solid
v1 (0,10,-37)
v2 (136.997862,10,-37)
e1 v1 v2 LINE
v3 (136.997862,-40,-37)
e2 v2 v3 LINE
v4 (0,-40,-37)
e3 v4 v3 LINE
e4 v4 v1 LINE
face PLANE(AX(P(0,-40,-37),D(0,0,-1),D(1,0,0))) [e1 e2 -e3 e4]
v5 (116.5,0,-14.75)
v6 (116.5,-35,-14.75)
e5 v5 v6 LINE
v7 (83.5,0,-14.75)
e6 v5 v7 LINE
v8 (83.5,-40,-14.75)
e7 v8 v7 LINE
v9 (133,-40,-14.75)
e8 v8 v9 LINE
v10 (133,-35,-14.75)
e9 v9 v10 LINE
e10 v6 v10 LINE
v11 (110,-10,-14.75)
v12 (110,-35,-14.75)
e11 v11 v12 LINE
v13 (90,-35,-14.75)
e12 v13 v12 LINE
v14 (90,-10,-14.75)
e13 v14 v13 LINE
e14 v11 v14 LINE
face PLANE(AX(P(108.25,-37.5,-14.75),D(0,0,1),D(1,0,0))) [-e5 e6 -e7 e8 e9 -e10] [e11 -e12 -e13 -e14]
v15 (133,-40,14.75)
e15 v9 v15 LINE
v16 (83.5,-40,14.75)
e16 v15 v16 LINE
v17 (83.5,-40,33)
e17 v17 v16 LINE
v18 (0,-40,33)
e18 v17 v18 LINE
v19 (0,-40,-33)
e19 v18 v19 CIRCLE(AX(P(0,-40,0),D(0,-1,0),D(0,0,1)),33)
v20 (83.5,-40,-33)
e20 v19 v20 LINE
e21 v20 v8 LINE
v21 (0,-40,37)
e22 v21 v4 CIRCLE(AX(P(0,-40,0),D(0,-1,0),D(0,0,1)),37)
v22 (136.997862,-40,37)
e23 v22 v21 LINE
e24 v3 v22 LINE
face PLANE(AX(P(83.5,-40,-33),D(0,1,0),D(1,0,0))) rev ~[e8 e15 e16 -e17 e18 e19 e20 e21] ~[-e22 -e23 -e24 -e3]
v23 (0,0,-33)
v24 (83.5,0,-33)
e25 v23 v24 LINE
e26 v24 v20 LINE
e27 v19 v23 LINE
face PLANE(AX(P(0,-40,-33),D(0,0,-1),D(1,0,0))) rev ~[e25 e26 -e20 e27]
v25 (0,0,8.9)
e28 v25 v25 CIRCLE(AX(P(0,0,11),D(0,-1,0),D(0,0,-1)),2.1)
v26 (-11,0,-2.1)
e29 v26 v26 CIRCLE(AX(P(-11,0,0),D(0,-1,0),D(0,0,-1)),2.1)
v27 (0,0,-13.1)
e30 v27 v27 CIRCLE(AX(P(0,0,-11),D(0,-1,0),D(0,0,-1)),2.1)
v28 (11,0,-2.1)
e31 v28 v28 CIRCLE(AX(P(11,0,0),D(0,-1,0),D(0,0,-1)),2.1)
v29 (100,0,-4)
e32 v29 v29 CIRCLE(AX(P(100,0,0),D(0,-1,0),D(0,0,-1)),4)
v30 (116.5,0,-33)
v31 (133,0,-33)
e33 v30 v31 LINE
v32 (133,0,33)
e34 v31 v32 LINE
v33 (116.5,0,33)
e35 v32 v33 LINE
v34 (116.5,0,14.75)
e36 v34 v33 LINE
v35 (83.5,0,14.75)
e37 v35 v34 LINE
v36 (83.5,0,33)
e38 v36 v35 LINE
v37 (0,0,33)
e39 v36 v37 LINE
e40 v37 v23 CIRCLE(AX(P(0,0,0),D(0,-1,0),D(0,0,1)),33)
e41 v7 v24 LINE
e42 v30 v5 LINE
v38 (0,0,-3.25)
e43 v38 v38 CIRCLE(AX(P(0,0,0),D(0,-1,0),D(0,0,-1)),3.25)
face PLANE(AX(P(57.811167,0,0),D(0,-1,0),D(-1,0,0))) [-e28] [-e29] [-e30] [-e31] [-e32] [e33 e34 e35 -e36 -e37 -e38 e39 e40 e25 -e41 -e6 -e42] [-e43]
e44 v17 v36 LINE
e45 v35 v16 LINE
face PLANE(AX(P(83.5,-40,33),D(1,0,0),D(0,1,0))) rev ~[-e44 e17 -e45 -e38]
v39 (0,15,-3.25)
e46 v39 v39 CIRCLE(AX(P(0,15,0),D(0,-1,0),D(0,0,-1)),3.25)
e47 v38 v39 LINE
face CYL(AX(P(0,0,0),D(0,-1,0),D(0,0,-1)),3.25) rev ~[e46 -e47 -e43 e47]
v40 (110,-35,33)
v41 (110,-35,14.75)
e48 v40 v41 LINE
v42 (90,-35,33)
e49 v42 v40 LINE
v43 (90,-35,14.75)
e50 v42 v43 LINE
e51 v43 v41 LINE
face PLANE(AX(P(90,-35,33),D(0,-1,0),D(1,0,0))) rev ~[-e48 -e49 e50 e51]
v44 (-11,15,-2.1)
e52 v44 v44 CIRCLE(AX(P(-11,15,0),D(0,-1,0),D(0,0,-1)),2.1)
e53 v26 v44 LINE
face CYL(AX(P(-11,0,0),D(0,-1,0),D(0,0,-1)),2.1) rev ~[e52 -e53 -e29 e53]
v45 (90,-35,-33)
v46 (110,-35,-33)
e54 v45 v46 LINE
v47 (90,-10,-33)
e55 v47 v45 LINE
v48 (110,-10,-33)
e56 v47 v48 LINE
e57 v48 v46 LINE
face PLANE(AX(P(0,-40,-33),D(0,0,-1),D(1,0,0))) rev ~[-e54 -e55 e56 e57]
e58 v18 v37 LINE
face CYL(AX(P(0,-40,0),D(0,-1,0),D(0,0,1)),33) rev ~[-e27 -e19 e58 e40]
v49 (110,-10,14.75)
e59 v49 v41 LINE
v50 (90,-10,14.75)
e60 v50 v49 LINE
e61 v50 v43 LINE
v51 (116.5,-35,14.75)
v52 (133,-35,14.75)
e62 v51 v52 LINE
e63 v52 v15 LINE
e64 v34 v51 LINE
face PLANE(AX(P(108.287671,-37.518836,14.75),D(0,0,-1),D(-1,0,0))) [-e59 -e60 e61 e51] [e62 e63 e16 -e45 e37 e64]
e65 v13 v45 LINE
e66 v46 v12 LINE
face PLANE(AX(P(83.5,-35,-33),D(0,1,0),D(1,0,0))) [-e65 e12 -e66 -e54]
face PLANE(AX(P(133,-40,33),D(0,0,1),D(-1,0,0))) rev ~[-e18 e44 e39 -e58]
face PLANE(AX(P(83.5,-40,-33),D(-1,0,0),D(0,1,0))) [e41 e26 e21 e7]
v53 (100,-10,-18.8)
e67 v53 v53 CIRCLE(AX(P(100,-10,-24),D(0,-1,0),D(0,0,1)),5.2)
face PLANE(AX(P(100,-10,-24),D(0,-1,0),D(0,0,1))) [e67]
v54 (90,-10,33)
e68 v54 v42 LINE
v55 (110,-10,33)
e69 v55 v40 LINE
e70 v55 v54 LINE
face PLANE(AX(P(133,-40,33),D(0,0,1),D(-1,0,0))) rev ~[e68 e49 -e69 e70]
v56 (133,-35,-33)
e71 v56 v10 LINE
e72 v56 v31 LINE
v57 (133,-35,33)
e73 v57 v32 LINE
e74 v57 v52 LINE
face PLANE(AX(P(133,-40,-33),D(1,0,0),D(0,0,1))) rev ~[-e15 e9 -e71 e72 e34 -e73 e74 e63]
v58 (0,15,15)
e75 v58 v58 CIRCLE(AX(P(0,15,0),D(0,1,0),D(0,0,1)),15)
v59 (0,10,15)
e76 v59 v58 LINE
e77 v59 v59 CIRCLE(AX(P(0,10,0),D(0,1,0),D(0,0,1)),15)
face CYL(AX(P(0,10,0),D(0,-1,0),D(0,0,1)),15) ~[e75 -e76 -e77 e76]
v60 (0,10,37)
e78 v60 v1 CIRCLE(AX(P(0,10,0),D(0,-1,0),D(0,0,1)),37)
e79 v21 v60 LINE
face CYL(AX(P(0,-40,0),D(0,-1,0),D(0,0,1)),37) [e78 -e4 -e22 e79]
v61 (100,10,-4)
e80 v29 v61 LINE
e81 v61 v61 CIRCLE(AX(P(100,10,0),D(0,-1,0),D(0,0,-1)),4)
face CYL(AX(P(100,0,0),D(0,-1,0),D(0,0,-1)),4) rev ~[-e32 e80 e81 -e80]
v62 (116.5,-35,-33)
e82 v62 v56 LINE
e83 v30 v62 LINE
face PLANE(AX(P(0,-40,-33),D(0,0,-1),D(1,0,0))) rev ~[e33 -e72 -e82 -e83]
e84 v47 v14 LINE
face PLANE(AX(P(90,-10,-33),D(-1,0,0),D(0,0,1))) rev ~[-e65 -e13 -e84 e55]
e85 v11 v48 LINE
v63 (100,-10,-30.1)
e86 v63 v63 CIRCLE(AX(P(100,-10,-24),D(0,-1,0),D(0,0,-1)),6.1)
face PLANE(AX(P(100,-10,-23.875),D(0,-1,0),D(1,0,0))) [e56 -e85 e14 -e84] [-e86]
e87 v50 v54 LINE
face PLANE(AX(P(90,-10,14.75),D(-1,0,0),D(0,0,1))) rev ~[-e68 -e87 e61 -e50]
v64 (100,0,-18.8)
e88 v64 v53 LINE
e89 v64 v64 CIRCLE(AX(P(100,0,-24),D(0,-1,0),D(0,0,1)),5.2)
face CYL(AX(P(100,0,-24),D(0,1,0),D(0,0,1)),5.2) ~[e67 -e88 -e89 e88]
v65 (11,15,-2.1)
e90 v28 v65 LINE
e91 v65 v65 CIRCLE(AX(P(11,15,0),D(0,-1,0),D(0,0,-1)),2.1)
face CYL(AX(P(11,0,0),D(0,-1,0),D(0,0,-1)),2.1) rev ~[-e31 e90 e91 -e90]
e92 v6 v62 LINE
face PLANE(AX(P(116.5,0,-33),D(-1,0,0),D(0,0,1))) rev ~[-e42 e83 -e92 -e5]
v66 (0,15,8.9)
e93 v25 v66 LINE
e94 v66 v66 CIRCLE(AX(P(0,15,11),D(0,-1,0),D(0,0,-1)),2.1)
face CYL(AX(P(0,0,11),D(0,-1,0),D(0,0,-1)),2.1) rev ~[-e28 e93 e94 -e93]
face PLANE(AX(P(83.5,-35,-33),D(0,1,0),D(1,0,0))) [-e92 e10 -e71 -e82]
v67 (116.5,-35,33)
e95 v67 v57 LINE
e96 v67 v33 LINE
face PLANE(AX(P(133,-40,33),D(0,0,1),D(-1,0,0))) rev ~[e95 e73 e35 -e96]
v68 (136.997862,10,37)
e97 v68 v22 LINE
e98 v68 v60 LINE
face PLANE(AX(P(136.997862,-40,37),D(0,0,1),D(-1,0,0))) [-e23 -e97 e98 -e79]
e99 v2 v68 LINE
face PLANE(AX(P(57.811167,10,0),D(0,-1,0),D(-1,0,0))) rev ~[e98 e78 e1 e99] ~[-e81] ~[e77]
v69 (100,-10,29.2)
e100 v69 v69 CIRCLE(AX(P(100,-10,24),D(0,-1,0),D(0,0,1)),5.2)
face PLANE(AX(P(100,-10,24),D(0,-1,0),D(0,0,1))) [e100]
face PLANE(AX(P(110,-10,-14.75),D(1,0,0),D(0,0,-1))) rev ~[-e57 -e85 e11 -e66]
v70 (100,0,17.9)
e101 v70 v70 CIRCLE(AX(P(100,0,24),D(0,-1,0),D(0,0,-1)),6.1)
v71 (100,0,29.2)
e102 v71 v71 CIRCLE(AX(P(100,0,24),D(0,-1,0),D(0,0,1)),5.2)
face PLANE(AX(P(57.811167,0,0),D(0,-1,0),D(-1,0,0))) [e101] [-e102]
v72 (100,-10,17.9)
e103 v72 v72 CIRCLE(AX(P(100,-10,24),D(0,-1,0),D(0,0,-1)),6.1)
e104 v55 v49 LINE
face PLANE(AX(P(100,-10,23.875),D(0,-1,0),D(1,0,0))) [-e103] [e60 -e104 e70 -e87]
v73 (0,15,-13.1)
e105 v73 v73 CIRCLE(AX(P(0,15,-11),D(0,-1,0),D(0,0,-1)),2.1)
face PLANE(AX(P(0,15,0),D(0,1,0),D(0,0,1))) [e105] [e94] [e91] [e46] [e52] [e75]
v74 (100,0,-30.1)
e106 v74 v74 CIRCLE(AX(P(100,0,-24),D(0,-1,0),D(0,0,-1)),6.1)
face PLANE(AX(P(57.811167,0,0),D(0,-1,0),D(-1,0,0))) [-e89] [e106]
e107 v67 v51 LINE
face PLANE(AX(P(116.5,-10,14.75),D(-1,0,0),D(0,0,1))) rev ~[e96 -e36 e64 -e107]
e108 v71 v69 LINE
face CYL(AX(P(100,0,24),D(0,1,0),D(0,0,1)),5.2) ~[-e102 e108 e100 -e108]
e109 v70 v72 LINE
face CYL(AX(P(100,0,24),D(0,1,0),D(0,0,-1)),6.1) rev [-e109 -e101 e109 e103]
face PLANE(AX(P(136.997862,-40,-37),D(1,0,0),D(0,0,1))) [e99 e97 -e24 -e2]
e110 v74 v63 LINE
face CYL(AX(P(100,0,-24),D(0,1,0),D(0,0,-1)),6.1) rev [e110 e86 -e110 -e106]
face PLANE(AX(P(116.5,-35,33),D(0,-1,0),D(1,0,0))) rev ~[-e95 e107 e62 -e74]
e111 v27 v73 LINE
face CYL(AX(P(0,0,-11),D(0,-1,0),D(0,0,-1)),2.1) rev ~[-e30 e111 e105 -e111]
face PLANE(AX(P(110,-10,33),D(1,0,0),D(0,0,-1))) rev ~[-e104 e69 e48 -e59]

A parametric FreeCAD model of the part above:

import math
import FreeCAD as App
import Part
import Sketcher

V = App.Vector
Q = App.Units.Quantity


def add_polygon(sketch, points):
    """Adds a closed chain of lines whose ends are joined by coincident constraints."""
    first, n = sketch.GeometryCount, len(points)
    for a, b in zip(points, points[1:] + points[:1]):
        sketch.addGeometry(Part.LineSegment(App.Vector(*a, 0), App.Vector(*b, 0)), False)
    for i in range(n):
        sketch.addConstraint(Sketcher.Constraint("Coincident", first + i, 2, first + (i + 1) % n, 1))

doc = App.newDocument("Part")
body = doc.addObject("PartDesign::Body", "Body")

sketch1 = body.newObject("Sketcher::SketchObject", "Sketch")
sketch1.AttachmentSupport = (doc.getObject("XZ_Plane"), [""])
sketch1.MapMode = "FlatFace"
sketch1.addGeometry([
    Part.LineSegment(V(137, -37, 0), V(0, -37, 0)),
    Part.ArcOfCircle(Part.Circle(V(0, 0, 0), V(0, 0, 1), 37), math.radians(90), math.radians(270)),
    Part.LineSegment(V(0, 37, 0), V(137, 37, 0)),
    Part.LineSegment(V(137, 37, 0), V(137, -37, 0)),
], False)
sketch1.addConstraint([
    Sketcher.Constraint("Tangent", 0, 2, 1, 2),
    Sketcher.Constraint("Tangent", 1, 1, 2, 1),
    Sketcher.Constraint("Coincident", 2, 2, 3, 1),
    Sketcher.Constraint("Coincident", 3, 2, 0, 1),
    Sketcher.Constraint("Horizontal", 0),
    Sketcher.Constraint("Horizontal", 2),
    Sketcher.Constraint("Vertical", 3),
    Sketcher.Constraint("Coincident", 1, 3, -1, 1),
    Sketcher.Constraint("Radius", 1, Q("37 mm")),
    Sketcher.Constraint("DistanceX", 0, 2, 0, 1, Q("136.997862 mm")),
])
pad1 = body.newObject("PartDesign::Pad", "Pad")
pad1.Profile = sketch1
pad1.Length = 10
pad1.Reversed = True

sketch2 = body.newObject("Sketcher::SketchObject", "Sketch001")
sketch2.AttachmentSupport = (doc.getObject("XZ_Plane"), [""])
sketch2.MapMode = "FlatFace"
sketch2.AttachmentOffset = App.Placement(V(0, 0, -10), App.Rotation())
sketch2.addGeometry(Part.Circle(V(0, 0, 0), V(0, 0, 1), 15), False)
sketch2.addConstraint([
    Sketcher.Constraint("Coincident", 0, 3, -1, 1),
    Sketcher.Constraint("Diameter", 0, Q("30 mm")),
])
pad2 = body.newObject("PartDesign::Pad", "Pad001")
pad2.Profile = sketch2
pad2.Length = 5
pad2.Reversed = True

sketch3 = body.newObject("Sketcher::SketchObject", "Sketch002")
sketch3.AttachmentSupport = (doc.getObject("XZ_Plane"), [""])
sketch3.MapMode = "FlatFace"
sketch3.AttachmentOffset = App.Placement(V(0, 0, 40), App.Rotation())
sketch3.addGeometry([
    Part.LineSegment(V(0, -37, 0), V(137, -37, 0)),
    Part.LineSegment(V(137, -37, 0), V(137, 37, 0)),
    Part.LineSegment(V(137, 37, 0), V(0, 37, 0)),
    Part.ArcOfCircle(Part.Circle(V(0, 0, 0), V(0, 0, 1), 37), math.radians(90), math.radians(270)),
    Part.ArcOfCircle(Part.Circle(V(0, 0, 0), V(0, 0, 1), 33), math.radians(90), math.radians(270)),
    Part.LineSegment(V(0, 33, 0), V(133, 33, 0)),
    Part.LineSegment(V(133, 33, 0), V(133, -33, 0)),
    Part.LineSegment(V(133, -33, 0), V(0, -33, 0)),
], False)
sketch3.addConstraint([
    Sketcher.Constraint("Coincident", 0, 2, 1, 1),
    Sketcher.Constraint("Coincident", 1, 2, 2, 1),
    Sketcher.Constraint("Tangent", 2, 2, 3, 1),
    Sketcher.Constraint("Tangent", 3, 2, 0, 1),
    Sketcher.Constraint("Tangent", 4, 1, 5, 1),
    Sketcher.Constraint("Coincident", 5, 2, 6, 1),
    Sketcher.Constraint("Coincident", 6, 2, 7, 1),
    Sketcher.Constraint("Tangent", 7, 2, 4, 2),
    Sketcher.Constraint("Horizontal", 0),
    Sketcher.Constraint("Vertical", 1),
    Sketcher.Constraint("Horizontal", 2),
    Sketcher.Constraint("Horizontal", 5),
    Sketcher.Constraint("Vertical", 6),
    Sketcher.Constraint("Horizontal", 7),
    Sketcher.Constraint("Coincident", 3, 3, -1, 1),
    Sketcher.Constraint("Coincident", 4, 3, -1, 1),
    Sketcher.Constraint("Radius", 3, Q("37 mm")),
    Sketcher.Constraint("Radius", 4, Q("33 mm")),
    Sketcher.Constraint("DistanceX", 5, 1, 5, 2, Q("133 mm")),
    Sketcher.Constraint("DistanceX", 0, 1, 0, 2, Q("136.997862 mm")),
])
pad3 = body.newObject("PartDesign::Pad", "Pad002")
pad3.Profile = sketch3
pad3.Length = 40
pad3.Reversed = True

sketch4 = body.newObject("Sketcher::SketchObject", "Sketch003")
sketch4.AttachmentSupport = (doc.getObject("XZ_Plane"), [""])
sketch4.MapMode = "FlatFace"
add_polygon(sketch4, [(84, 33), (84, 15), (116, 15), (116, 33)])
sketch4.addGeometry(Part.Circle(V(100, 24, 0), V(0, 0, 1), 6), False)
add_polygon(sketch4, [(84, -15), (84, -33), (116, -33), (116, -15)])
sketch4.addGeometry(Part.Circle(V(100, -24, 0), V(0, 0, 1), 6), False)
sketch4.addConstraint([
    Sketcher.Constraint("Vertical", 0),
    Sketcher.Constraint("Horizontal", 1),
    Sketcher.Constraint("Vertical", 2),
    Sketcher.Constraint("Horizontal", 3),
    Sketcher.Constraint("Vertical", 5),
    Sketcher.Constraint("Horizontal", 6),
    Sketcher.Constraint("Vertical", 7),
    Sketcher.Constraint("Horizontal", 8),
    Sketcher.Constraint("Equal", 4, 9),
    Sketcher.Constraint("Symmetric", 4, 3, 9, 3, -1),
    Sketcher.Constraint("Symmetric", 3, 2, 5, 2, -1),
    Sketcher.Constraint("Symmetric", 1, 2, 7, 2, -1),
    Sketcher.Constraint("Diameter", 4, Q("12.2 mm")),
    Sketcher.Constraint("DistanceX", 1, 1, 1, 2, Q("33 mm")),
    Sketcher.Constraint("DistanceX", -1, 1, 4, 3, Q("100 mm")),
    Sketcher.Constraint("DistanceY", -1, 1, 4, 3, Q("24 mm")),
    Sketcher.Constraint("DistanceY", -1, 1, 2, 2, Q("33 mm")),
    Sketcher.Constraint("DistanceY", 0, 2, 0, 1, Q("18.25 mm")),
    Sketcher.Constraint("DistanceX", -1, 1, 0, 2, Q("83.5 mm")),
])
pad4 = body.newObject("PartDesign::Pad", "Pad003")
pad4.Profile = sketch4
pad4.Length = 10

sketch5 = body.newObject("Sketcher::SketchObject", "Sketch004")
sketch5.AttachmentSupport = (doc.getObject("XZ_Plane"), [""])
sketch5.MapMode = "FlatFace"
sketch5.AttachmentOffset = App.Placement(V(0, 0, 10), App.Rotation())
add_polygon(sketch5, [(90, 15), (90, 33), (84, 33), (84, 15)])
add_polygon(sketch5, [(116, 33), (110, 33), (110, 15), (116, 15)])
add_polygon(sketch5, [(110, -15), (110, -33), (116, -33), (116, -15)])
add_polygon(sketch5, [(90, -15), (84, -15), (84, -33), (90, -33)])
sketch5.addConstraint([
    Sketcher.Constraint("Vertical", 0),
    Sketcher.Constraint("Horizontal", 1),
    Sketcher.Constraint("Vertical", 2),
    Sketcher.Constraint("Horizontal", 3),
    Sketcher.Constraint("Horizontal", 4),
    Sketcher.Constraint("Vertical", 5),
    Sketcher.Constraint("Horizontal", 6),
    Sketcher.Constraint("Vertical", 7),
    Sketcher.Constraint("Vertical", 8),
    Sketcher.Constraint("Horizontal", 9),
    Sketcher.Constraint("Vertical", 10),
    Sketcher.Constraint("Horizontal", 11),
    Sketcher.Constraint("Horizontal", 12),
    Sketcher.Constraint("Vertical", 13),
    Sketcher.Constraint("Horizontal", 14),
    Sketcher.Constraint("Vertical", 15),
    Sketcher.Constraint("Symmetric", 4, 2, 8, 2, -1),
    Sketcher.Constraint("Symmetric", 6, 2, 10, 2, -1),
    Sketcher.Constraint("Symmetric", 2, 2, 12, 2, -1),
    Sketcher.Constraint("Symmetric", 0, 2, 14, 2, -1),
    Sketcher.Constraint("Horizontal", 1, 2, 4, 2),
    Sketcher.Constraint("Horizontal", 3, 2, 5, 2),
    Sketcher.Constraint("Equal", 3, 4),
    Sketcher.Constraint("DistanceX", 1, 2, 1, 1, Q("6.5 mm")),
    Sketcher.Constraint("DistanceX", -1, 1, 0, 2, Q("90 mm")),
    Sketcher.Constraint("DistanceY", -1, 1, 0, 2, Q("33 mm")),
    Sketcher.Constraint("DistanceX", -1, 1, 4, 2, Q("110 mm")),
    Sketcher.Constraint("DistanceY", 0, 1, 0, 2, Q("18.25 mm")),
])
pad5 = body.newObject("PartDesign::Pad", "Pad004")
pad5.Profile = sketch5
pad5.Length = 25.25

sketch6 = body.newObject("Sketcher::SketchObject", "Sketch005")
sketch6.AttachmentSupport = (doc.getObject("XY_Plane"), [""])
sketch6.MapMode = "FlatFace"
sketch6.AttachmentOffset = App.Placement(V(0, 0, 33), App.Rotation())
add_polygon(sketch6, [(133, -35), (133, -40), (83.5, -40), (83.5, -35.25), (90, -35.25), (90, -35), (110, -35), (110, -35.25), (116.5, -35.25), (116.5, -35)])
sketch6.addConstraint([
    Sketcher.Constraint("Vertical", 0),
    Sketcher.Constraint("Horizontal", 1),
    Sketcher.Constraint("Vertical", 2),
    Sketcher.Constraint("Horizontal", 3),
    Sketcher.Constraint("Vertical", 4),
    Sketcher.Constraint("Horizontal", 5),
    Sketcher.Constraint("Vertical", 6),
    Sketcher.Constraint("Horizontal", 7),
    Sketcher.Constraint("Vertical", 8),
    Sketcher.Constraint("Horizontal", 9),
    Sketcher.Constraint("Horizontal", 3, 2, 6, 2),
    Sketcher.Constraint("Horizontal", 5, 2, 8, 2),
    Sketcher.Constraint("Equal", 3, 7),
    Sketcher.Constraint("DistanceX", 5, 1, 5, 2, Q("20 mm")),
    Sketcher.Constraint("DistanceY", 0, 2, 0, 1, Q("5 mm")),
    Sketcher.Constraint("DistanceX", 1, 2, 1, 1, Q("49.5 mm")),
    Sketcher.Constraint("DistanceX", 3, 1, 3, 2, Q("6.5 mm")),
    Sketcher.Constraint("DistanceX", -1, 1, 0, 2, Q("133 mm")),
    Sketcher.Constraint("DistanceY", 0, 2, -1, 1, Q("40 mm")),
    Sketcher.Constraint("DistanceY", 2, 1, 2, 2, Q("4.75 mm")),
])
pad6 = body.newObject("PartDesign::Pad", "Pad005")
pad6.Profile = sketch6
pad6.Length = 18.25
pad6.Reversed = True

sketch7 = body.newObject("Sketcher::SketchObject", "Sketch006")
sketch7.AttachmentSupport = (doc.getObject("XY_Plane"), [""])
sketch7.MapMode = "FlatFace"
sketch7.AttachmentOffset = App.Placement(V(0, 0, -33), App.Rotation())
add_polygon(sketch7, [(84, -35), (84, -40), (133, -40), (133, -35)])
sketch7.addConstraint([
    Sketcher.Constraint("Vertical", 0),
    Sketcher.Constraint("Horizontal", 1),
    Sketcher.Constraint("Vertical", 2),
    Sketcher.Constraint("Horizontal", 3),
    Sketcher.Constraint("DistanceY", 0, 2, 0, 1, Q("5 mm")),
    Sketcher.Constraint("DistanceX", 1, 1, 1, 2, Q("49.5 mm")),
    Sketcher.Constraint("DistanceY", 0, 2, -1, 1, Q("40 mm")),
    Sketcher.Constraint("DistanceX", -1, 1, 1, 2, Q("133 mm")),
])
pad7 = body.newObject("PartDesign::Pad", "Pad006")
pad7.Profile = sketch7
pad7.Length = 18.25

sketch8 = body.newObject("Sketcher::SketchObject", "Sketch007")
sketch8.AttachmentSupport = (doc.getObject("XZ_Plane"), [""])
sketch8.MapMode = "FlatFace"
sketch8.addGeometry([
    Part.Circle(V(-11, 0, 0), V(0, 0, 1), 2.1),
    Part.Circle(V(0, 0, 0), V(0, 0, 1), 3.2),
    Part.Circle(V(0, 11, 0), V(0, 0, 1), 2.1),
    Part.Circle(V(11, 0, 0), V(0, 0, 1), 2.1),
    Part.Circle(V(0, -11, 0), V(0, 0, 1), 2.1),
    Part.Circle(V(100, 0, 0), V(0, 0, 1), 4),
], False)
sketch8.addConstraint([
    Sketcher.Constraint("Coincident", 1, 3, -1, 1),
    Sketcher.Constraint("Equal", 0, 2),
    Sketcher.Constraint("Equal", 2, 3),
    Sketcher.Constraint("Equal", 3, 4),
    Sketcher.Constraint("Symmetric", 0, 3, 3, 3, -1, 1),
    Sketcher.Constraint("Symmetric", 2, 3, 4, 3, -1, 1),
    Sketcher.Constraint("PointOnObject", 0, 3, -1),
    Sketcher.Constraint("PointOnObject", 2, 3, -2),
    Sketcher.Constraint("PointOnObject", 5, 3, -1),
    Sketcher.Constraint("Diameter", 5, Q("8 mm")),
    Sketcher.Constraint("Diameter", 0, Q("4.2 mm")),
    Sketcher.Constraint("Diameter", 1, Q("6.5 mm")),
    Sketcher.Constraint("DistanceX", 0, 3, -1, 1, Q("11 mm")),
    Sketcher.Constraint("DistanceY", -1, 1, 2, 3, Q("11 mm")),
    Sketcher.Constraint("DistanceX", -1, 1, 5, 3, Q("100 mm")),
])
pocket1 = body.newObject("PartDesign::Pocket", "Pocket")
pocket1.Profile = sketch8
pocket1.Length = 18.25

sketch9 = body.newObject("Sketcher::SketchObject", "Sketch008")
sketch9.AttachmentSupport = (doc.getObject("XZ_Plane"), [""])
sketch9.MapMode = "FlatFace"
sketch9.addGeometry([
    Part.Circle(V(100, 24, 0), V(0, 0, 1), 5),
    Part.Circle(V(100, -24, 0), V(0, 0, 1), 5),
], False)
sketch9.addConstraint([
    Sketcher.Constraint("Equal", 0, 1),
    Sketcher.Constraint("Symmetric", 0, 3, 1, 3, -1),
    Sketcher.Constraint("Diameter", 0, Q("10.4 mm")),
    Sketcher.Constraint("DistanceX", -1, 1, 0, 3, Q("100 mm")),
    Sketcher.Constraint("DistanceY", -1, 1, 0, 3, Q("24 mm")),
])
pad8 = body.newObject("PartDesign::Pad", "Pad007")
pad8.Profile = sketch9
pad8.Length = 10

doc.recompute()
